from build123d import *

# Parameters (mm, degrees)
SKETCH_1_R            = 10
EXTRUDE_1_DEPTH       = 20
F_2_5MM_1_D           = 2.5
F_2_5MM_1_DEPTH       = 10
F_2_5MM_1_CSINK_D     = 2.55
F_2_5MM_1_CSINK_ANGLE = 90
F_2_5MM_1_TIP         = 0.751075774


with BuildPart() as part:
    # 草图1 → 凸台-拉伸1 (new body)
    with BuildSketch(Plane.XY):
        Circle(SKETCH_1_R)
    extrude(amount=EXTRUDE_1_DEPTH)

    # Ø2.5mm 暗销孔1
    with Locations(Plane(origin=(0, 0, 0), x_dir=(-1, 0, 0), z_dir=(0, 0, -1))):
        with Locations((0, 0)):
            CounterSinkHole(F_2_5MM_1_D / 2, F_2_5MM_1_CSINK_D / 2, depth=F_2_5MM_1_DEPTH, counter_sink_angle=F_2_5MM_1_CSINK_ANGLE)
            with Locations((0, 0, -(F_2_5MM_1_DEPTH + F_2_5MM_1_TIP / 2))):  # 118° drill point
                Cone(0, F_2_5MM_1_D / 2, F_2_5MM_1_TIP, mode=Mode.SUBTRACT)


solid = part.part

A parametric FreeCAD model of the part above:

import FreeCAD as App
import Part
import Sketcher
from FreeCAD import Vector
Q = App.Units.Quantity

doc = App.newDocument("Part")
params = doc.addObject("Spreadsheet::Sheet", "Params")
for row, (alias, value) in enumerate([
    ("sketch1_diameter", "20 mm"),
    ("pad1_length", "20 mm"),
    ("sketch2_diameter", "2.5 mm"),
    ("hole_diameter", "2.5 mm"),
    ("hole_depth", "10 mm"),
    ("hole_csink_diameter", "2.55 mm"),
], start=1):
    params.set(f"A{row}", alias)
    params.set(f"B{row}", "=" + value)
    params.setAlias(f"B{row}", alias)

body = doc.addObject("PartDesign::Body", "Body")

# Sketch on XY plane
sketch1 = body.newObject("Sketcher::SketchObject", "Sketch")
sketch1.AttachmentSupport = (doc.getObject("XY_Plane"), [""])
sketch1.MapMode = "FlatFace"
sketch1.addGeometry(Part.Circle(Vector(0, 0, 0), Vector(0, 0, 1), 10), False)
sketch1.addConstraint([
    Sketcher.Constraint("Coincident", 0, 3, -1, 1),
    Sketcher.Constraint("Diameter", 0, Q("20 mm")),
])
sketch1.setExpression("Constraints[1]", "Params.sketch1_diameter")
pad1 = body.newObject("PartDesign::Pad", "Pad")
pad1.Profile = sketch1
pad1.setExpression("Length", "Params.pad1_length")

# Sketch on XY plane
sketch2 = body.newObject("Sketcher::SketchObject", "Sketch001")
sketch2.AttachmentSupport = (doc.getObject("XY_Plane"), [""])
sketch2.MapMode = "FlatFace"
sketch2.addGeometry(Part.Circle(Vector(0, 0, 0), Vector(0, 0, 1), 1.25), False)
sketch2.addConstraint([
    Sketcher.Constraint("Coincident", 0, 3, -1, 1),
    Sketcher.Constraint("Diameter", 0, Q("2.5 mm")),
])
sketch2.setExpression("Constraints[1]", "Params.sketch2_diameter")
doc.recompute()
hole = body.newObject("PartDesign::Hole", "Hole")
hole.Profile = sketch2
hole.ThreadType = "None"
hole.setExpression("Diameter", "Params.hole_diameter")
hole.DepthType = "Dimension"
hole.setExpression("Depth", "Params.hole_depth")
hole.DrillPoint = "Angled"
hole.DrillPointAngle = 118
hole.HoleCutType = "Countersink"
hole.setExpression("HoleCutDiameter", "Params.hole_csink_diameter")
hole.HoleCutCountersinkAngle = 90
hole.Reversed = True

doc.recompute()
